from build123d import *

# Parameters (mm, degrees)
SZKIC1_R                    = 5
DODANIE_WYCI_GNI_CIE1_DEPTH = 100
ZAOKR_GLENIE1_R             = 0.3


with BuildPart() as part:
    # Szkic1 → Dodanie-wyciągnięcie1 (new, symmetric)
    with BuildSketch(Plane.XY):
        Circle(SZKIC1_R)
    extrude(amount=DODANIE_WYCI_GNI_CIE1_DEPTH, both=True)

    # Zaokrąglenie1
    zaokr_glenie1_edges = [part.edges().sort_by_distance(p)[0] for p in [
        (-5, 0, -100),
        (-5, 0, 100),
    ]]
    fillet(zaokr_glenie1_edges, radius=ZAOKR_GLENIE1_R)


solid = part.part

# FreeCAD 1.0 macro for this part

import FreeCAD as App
import Part
import Sketcher

V = App.Vector


def edges_at(feature, points):
    """Names of the edges that pass closest to the given points."""
    edges = feature.Shape.Edges
    near = lambda p: min(range(len(edges)), key=lambda i: edges[i].distToShape(Part.Vertex(*p))[0])
    return sorted({f"Edge{near(p) + 1}" for p in points})

doc = App.newDocument("Part")
body = doc.addObject("PartDesign::Body", "Body")

sketch1 = body.newObject("Sketcher::SketchObject", "Sketch")
sketch1.AttachmentSupport = (doc.getObject("XY_Plane"), [""])
sketch1.MapMode = "FlatFace"
sketch1.addGeometry(Part.Circle(V(0, 0, 0), V(0, 0, 1), 5), False)
sketch1.addConstraint([
    Sketcher.Constraint("Coincident", 0, 3, -1, 1),
    Sketcher.Constraint("Diameter", 0, 10.0),
])
pad1 = body.newObject("PartDesign::Pad", "Pad")
pad1.Profile = sketch1
pad1.Length = 200
pad1.Midplane = True
doc.recompute()

fillet = body.newObject("PartDesign::Fillet", "Fillet")
fillet.Base = (pad1, edges_at(pad1, [(-5, 0, -100), (-5, 0, 100)]))
fillet.Radius = 0.3

doc.recompute()
